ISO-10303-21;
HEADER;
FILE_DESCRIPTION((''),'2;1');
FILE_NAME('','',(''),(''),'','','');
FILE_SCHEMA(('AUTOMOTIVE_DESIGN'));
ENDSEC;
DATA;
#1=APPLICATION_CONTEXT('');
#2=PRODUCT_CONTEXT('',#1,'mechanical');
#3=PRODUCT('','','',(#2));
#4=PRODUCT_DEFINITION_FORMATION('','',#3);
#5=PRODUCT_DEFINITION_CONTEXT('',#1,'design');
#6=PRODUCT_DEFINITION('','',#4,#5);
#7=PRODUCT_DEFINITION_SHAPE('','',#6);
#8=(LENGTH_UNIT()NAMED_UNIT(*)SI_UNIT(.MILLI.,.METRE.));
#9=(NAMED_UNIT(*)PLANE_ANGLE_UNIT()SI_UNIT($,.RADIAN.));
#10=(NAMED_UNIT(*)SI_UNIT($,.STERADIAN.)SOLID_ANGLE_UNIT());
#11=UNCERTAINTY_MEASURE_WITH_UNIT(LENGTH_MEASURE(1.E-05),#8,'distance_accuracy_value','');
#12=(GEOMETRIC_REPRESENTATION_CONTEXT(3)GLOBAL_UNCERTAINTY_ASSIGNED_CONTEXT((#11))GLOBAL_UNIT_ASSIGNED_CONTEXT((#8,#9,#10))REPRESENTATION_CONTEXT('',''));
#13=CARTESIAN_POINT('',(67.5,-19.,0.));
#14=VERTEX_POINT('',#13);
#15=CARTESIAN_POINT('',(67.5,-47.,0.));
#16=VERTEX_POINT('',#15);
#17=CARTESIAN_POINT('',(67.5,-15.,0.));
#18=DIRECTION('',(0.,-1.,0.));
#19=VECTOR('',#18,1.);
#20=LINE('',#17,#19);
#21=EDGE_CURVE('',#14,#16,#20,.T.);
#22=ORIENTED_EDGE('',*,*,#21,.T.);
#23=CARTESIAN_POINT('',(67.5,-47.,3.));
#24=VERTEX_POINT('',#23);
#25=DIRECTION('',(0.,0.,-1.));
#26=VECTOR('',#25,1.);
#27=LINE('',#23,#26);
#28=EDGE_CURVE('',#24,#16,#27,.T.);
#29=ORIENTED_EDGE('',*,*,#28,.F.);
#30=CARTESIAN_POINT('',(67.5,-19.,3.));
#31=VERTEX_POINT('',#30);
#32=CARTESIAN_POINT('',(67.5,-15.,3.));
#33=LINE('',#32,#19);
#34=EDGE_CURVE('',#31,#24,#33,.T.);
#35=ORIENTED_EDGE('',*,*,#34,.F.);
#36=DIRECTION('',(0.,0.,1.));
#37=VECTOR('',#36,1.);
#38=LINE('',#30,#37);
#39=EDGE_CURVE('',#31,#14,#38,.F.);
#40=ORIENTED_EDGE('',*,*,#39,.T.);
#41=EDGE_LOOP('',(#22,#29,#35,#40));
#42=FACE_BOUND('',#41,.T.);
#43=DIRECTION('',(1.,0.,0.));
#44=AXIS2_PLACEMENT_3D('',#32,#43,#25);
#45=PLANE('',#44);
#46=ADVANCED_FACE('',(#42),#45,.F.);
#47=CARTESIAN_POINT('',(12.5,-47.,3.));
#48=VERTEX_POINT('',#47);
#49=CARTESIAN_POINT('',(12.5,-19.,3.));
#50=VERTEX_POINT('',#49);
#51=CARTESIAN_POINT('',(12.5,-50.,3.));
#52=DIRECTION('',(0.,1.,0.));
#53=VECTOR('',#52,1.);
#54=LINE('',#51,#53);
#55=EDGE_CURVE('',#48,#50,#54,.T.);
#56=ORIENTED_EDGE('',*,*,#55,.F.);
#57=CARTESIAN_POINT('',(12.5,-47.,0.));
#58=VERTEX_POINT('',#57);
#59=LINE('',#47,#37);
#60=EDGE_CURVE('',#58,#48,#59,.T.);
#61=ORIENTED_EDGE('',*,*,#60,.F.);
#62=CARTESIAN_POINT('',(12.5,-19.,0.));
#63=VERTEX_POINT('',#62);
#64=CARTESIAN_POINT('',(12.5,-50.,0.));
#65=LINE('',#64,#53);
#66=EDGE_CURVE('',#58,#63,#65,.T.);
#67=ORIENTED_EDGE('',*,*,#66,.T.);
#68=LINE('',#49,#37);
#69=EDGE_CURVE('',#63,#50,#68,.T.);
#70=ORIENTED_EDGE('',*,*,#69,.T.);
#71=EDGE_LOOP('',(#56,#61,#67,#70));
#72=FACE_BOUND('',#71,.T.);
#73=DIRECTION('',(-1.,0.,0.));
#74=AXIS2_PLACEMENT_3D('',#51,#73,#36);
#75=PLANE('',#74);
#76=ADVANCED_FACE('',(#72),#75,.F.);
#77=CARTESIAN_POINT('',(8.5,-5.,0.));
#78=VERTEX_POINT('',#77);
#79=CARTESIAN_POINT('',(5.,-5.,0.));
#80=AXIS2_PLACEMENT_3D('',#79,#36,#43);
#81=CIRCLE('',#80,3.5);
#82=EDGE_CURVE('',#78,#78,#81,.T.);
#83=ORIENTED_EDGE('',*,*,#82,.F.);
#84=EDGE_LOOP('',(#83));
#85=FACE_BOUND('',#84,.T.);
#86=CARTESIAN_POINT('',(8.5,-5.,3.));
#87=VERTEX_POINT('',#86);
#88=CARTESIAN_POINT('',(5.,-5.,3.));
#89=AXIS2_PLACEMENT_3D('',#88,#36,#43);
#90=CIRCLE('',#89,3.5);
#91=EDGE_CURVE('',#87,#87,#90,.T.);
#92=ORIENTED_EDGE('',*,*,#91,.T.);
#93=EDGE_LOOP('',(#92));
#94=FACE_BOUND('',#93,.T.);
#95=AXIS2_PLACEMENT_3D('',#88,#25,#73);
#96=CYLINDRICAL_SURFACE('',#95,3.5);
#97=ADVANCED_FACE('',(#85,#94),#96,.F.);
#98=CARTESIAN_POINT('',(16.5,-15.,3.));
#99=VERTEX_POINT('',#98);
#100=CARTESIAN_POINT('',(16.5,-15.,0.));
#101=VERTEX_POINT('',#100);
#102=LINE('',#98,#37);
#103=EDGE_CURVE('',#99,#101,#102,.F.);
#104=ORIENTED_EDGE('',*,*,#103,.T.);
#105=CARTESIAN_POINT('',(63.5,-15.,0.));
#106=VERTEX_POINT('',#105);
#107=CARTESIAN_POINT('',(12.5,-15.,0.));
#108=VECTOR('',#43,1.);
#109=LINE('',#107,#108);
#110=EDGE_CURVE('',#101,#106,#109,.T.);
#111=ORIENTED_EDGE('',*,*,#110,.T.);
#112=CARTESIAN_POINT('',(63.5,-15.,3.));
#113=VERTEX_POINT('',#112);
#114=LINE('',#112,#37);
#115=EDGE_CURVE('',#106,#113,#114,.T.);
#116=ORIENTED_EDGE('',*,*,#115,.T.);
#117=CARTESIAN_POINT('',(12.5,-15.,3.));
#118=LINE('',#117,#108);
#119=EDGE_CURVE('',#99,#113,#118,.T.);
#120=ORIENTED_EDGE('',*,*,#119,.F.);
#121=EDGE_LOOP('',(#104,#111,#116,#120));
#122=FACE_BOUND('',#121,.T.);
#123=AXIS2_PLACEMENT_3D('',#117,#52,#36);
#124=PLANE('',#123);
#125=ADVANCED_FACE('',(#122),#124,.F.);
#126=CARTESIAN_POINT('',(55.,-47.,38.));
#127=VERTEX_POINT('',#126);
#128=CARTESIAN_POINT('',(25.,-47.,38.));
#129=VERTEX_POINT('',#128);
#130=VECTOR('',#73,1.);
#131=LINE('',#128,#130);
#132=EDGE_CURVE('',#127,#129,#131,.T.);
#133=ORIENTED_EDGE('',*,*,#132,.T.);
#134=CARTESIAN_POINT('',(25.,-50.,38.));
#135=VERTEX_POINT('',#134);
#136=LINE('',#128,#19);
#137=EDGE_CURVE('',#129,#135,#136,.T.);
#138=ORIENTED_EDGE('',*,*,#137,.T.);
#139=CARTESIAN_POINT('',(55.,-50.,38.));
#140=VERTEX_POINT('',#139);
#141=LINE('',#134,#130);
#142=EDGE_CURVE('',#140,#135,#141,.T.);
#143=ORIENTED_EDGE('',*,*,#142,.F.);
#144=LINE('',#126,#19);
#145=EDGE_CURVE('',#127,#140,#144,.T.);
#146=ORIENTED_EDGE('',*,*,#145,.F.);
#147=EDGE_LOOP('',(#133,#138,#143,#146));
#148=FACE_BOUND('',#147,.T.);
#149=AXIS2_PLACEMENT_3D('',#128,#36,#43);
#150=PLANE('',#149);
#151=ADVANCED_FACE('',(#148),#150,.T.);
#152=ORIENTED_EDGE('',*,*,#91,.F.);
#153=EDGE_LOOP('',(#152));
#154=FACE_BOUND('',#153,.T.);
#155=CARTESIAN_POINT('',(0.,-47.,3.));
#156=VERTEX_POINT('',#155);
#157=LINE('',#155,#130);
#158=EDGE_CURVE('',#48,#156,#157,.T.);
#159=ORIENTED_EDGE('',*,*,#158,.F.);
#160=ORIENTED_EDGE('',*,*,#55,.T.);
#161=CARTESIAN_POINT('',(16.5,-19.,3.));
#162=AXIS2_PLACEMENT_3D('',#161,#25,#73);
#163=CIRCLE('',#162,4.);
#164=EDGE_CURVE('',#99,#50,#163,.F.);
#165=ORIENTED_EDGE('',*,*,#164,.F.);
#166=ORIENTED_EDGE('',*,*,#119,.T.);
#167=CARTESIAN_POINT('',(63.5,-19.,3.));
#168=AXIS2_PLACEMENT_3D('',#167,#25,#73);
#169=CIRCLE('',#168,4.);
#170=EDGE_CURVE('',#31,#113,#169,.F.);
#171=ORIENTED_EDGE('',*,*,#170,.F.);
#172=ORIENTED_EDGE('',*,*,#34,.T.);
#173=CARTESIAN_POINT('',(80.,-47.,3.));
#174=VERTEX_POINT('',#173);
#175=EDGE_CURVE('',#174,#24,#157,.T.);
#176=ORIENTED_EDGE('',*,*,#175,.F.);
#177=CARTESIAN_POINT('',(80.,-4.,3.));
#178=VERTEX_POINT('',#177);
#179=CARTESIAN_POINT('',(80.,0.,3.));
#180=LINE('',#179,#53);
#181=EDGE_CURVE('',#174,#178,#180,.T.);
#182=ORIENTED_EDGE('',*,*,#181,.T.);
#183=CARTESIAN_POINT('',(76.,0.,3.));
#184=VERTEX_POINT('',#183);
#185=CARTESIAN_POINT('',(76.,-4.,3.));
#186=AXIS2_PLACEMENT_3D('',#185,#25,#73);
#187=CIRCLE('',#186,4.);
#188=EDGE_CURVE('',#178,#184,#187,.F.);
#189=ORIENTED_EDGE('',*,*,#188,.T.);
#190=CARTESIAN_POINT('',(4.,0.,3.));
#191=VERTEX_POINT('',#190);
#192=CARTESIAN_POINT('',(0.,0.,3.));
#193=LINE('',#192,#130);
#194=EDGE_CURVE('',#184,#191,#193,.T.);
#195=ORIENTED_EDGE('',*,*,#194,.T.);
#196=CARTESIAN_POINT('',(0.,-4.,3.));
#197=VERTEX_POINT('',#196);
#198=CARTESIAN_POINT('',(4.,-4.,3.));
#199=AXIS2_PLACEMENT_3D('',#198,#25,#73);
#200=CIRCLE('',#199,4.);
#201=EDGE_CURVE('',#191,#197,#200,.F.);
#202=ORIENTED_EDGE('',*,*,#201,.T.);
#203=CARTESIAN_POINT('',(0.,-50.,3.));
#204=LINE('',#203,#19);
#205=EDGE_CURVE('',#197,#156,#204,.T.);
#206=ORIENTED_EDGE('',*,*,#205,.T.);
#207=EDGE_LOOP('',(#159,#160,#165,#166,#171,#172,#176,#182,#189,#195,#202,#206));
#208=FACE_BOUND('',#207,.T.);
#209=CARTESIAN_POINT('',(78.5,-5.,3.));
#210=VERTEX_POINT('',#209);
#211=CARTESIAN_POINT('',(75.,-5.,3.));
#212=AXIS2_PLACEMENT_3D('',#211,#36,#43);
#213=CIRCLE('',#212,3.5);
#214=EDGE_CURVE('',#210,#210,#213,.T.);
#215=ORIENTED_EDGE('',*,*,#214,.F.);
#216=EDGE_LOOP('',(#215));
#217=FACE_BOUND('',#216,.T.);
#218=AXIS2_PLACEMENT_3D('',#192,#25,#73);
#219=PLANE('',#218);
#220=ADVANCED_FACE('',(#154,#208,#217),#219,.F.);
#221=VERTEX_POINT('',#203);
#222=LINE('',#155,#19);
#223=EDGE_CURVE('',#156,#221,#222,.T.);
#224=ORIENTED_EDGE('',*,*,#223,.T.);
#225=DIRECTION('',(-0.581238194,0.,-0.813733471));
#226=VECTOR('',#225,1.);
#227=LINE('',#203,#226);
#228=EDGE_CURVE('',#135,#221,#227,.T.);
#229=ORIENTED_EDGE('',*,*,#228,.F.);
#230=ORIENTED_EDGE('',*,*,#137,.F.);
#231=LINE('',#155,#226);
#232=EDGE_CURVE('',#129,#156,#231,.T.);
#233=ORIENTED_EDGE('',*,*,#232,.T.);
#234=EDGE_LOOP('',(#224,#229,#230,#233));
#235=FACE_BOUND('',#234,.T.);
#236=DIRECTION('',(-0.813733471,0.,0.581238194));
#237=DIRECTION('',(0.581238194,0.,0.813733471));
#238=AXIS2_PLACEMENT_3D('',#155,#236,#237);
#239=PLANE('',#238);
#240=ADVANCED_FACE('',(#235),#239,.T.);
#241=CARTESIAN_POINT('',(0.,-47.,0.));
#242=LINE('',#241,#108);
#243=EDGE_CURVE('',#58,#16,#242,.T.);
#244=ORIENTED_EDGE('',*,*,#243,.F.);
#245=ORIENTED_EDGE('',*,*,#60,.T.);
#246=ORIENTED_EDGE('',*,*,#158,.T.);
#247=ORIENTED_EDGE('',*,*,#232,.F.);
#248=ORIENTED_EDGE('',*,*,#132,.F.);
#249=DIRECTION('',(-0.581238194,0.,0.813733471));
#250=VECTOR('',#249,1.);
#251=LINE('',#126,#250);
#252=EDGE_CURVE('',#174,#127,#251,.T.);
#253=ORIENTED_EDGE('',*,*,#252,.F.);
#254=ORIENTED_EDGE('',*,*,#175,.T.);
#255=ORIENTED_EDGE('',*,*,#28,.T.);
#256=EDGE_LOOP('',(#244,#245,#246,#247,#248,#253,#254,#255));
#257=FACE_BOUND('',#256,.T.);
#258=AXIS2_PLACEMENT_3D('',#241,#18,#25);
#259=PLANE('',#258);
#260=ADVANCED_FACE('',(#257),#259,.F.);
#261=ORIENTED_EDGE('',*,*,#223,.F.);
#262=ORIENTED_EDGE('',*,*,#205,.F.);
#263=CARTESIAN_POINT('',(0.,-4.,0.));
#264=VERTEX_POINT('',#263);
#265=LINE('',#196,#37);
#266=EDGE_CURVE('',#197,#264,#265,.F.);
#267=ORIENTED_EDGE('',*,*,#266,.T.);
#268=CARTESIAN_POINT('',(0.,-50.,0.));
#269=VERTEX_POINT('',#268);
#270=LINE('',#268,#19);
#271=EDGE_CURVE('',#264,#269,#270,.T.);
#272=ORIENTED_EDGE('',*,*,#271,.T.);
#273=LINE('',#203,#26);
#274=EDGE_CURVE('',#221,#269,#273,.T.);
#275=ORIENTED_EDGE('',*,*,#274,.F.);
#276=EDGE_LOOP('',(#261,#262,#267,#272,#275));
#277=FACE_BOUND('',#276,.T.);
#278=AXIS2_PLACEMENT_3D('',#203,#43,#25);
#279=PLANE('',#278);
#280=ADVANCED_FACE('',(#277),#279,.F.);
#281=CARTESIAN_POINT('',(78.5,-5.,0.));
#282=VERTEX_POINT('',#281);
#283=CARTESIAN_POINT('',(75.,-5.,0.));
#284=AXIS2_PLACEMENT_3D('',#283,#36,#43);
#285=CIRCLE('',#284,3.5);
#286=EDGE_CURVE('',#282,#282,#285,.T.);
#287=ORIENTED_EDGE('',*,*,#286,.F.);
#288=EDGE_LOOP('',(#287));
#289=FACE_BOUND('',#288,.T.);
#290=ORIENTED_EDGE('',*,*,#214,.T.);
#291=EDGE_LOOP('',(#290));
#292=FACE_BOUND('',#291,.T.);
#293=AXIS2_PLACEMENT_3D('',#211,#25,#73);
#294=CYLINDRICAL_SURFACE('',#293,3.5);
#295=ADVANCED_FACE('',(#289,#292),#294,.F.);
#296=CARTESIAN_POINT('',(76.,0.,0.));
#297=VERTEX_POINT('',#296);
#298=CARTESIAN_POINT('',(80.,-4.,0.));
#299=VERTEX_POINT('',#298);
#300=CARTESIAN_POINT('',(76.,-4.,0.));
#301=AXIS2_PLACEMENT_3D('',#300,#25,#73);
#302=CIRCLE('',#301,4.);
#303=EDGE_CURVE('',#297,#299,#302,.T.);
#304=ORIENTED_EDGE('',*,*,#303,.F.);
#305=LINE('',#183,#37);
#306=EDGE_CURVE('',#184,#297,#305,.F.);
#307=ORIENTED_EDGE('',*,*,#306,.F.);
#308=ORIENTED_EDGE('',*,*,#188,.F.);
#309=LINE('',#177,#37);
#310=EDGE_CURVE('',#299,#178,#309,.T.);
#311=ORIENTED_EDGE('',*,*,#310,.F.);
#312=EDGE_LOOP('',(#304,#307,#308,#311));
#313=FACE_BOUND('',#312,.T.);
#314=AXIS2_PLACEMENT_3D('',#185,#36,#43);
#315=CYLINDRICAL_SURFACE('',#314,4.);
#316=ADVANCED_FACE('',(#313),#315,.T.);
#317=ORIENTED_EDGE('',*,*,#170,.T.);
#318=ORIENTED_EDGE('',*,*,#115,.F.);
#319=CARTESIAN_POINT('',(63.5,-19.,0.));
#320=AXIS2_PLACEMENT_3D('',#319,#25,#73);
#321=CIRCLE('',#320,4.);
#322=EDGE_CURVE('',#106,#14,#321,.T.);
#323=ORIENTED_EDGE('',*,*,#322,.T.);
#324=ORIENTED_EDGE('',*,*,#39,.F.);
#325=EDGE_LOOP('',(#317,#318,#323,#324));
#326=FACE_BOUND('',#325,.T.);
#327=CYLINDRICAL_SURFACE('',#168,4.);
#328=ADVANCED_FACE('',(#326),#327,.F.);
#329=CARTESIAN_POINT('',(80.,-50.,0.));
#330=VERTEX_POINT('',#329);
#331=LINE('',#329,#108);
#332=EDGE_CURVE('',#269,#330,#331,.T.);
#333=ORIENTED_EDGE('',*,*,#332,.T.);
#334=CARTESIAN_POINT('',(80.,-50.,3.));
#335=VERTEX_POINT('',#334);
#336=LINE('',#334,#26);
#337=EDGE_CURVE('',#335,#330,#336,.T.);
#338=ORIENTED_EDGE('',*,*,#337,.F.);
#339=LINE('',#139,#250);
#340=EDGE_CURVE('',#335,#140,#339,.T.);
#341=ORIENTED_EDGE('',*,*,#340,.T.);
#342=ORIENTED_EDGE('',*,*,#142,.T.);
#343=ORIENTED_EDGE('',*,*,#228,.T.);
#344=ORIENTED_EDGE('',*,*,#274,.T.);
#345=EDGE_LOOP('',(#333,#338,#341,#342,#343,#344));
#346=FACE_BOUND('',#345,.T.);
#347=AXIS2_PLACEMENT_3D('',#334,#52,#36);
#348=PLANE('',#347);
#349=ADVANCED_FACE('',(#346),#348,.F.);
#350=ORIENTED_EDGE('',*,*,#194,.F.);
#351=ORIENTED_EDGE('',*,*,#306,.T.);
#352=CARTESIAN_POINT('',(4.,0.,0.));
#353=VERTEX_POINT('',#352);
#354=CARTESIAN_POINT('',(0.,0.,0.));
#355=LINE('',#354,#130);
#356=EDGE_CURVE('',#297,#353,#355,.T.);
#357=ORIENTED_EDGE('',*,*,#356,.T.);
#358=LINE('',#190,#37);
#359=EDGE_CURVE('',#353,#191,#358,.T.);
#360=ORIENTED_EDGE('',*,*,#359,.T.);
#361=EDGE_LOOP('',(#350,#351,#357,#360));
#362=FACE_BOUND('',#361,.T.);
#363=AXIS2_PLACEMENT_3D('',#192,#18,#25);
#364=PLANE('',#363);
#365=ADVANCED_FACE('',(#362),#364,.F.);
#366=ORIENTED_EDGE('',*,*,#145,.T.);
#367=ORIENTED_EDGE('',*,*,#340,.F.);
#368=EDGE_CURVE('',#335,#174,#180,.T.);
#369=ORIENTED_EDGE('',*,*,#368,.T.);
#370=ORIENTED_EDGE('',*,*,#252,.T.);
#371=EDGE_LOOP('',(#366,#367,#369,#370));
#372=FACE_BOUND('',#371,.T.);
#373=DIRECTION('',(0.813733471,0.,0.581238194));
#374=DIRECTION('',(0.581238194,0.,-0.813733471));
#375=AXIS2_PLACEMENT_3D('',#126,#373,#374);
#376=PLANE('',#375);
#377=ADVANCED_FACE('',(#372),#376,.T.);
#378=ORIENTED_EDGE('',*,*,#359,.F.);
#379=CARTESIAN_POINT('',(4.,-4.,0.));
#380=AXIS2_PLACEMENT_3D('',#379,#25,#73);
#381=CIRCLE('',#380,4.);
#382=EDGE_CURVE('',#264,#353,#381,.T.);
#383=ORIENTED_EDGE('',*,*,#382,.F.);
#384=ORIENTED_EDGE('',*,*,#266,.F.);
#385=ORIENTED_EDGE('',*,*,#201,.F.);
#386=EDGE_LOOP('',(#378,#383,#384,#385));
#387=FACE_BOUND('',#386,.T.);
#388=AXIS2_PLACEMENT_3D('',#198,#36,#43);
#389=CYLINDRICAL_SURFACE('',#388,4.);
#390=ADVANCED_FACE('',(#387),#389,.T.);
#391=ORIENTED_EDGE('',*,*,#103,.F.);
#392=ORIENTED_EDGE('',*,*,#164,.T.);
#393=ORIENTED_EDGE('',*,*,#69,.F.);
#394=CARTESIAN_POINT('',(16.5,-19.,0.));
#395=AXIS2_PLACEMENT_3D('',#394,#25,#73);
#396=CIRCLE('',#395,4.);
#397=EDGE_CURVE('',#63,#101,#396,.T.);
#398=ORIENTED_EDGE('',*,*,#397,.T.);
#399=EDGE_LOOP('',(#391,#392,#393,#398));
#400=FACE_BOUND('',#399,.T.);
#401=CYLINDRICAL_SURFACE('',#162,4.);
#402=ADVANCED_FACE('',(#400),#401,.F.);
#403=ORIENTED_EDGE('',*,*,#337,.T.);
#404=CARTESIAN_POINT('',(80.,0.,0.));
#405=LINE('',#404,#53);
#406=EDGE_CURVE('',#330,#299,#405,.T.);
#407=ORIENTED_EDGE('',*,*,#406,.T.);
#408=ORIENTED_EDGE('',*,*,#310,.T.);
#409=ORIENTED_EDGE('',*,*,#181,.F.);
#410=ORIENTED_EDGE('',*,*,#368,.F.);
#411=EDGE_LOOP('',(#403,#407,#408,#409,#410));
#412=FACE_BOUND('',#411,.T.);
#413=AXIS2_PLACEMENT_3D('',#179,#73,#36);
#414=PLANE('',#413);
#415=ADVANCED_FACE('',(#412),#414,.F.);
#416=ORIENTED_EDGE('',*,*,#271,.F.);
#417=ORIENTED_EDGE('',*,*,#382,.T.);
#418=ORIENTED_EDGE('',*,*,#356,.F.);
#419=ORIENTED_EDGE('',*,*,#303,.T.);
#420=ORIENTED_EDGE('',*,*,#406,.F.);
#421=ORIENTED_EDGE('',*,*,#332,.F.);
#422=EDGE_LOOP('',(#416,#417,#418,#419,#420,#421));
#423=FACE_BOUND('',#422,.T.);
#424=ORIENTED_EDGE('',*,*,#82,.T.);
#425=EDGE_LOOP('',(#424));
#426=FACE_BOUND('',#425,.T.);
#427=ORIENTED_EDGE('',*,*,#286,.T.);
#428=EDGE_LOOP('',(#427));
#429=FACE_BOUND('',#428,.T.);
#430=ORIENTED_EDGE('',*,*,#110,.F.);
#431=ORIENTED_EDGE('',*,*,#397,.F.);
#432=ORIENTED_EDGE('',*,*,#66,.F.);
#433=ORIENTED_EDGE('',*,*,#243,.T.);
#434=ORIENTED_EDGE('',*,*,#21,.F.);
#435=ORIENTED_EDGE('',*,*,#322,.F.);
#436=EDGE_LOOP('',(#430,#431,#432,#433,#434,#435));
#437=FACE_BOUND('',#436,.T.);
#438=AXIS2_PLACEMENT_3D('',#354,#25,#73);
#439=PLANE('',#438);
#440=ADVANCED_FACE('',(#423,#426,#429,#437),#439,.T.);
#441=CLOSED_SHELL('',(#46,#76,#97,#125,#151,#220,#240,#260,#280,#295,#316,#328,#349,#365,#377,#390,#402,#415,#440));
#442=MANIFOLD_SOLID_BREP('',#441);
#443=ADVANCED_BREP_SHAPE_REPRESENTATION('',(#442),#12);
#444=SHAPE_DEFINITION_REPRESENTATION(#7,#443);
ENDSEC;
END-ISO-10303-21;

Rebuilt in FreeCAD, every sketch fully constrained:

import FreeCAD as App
import Part
import Sketcher
Q = App.Units.Quantity


def edges_at(feature, points):
    """Names of the edges that pass closest to the given points."""
    edges = feature.Shape.Edges
    near = lambda p: min(range(len(edges)), key=lambda i: edges[i].distToShape(Part.Vertex(*p))[0])
    return sorted({f"Edge{near(p) + 1}" for p in points})

doc = App.newDocument("Part")
body = doc.addObject("PartDesign::Body", "Body")

# Sketch on XY plane
sketch1 = body.newObject("Sketcher::SketchObject", "Sketch")
sketch1.AttachmentSupport = (doc.getObject("XY_Plane"), [""])
sketch1.MapMode = "FlatFace"
sketch1.addGeometry([
    Part.LineSegment(App.Vector(80, 0, 0), App.Vector(0, 0, 0)),  # 0
    Part.LineSegment(App.Vector(0, 0, 0), App.Vector(0, -50, 0)),  # 1
    Part.LineSegment(App.Vector(0, -50, 0), App.Vector(12.5, -50, 0)),  # 2
    Part.LineSegment(App.Vector(12.5, -50, 0), App.Vector(12.5, -15, 0)),  # 3
    Part.LineSegment(App.Vector(12.5, -15, 0), App.Vector(67.5, -15, 0)),  # 4
    Part.LineSegment(App.Vector(67.5, -15, 0), App.Vector(67.5, -50, 0)),  # 5
    Part.LineSegment(App.Vector(67.5, -50, 0), App.Vector(80, -50, 0)),  # 6
    Part.LineSegment(App.Vector(80, -50, 0), App.Vector(80, 0, 0)),  # 7
    Part.Circle(App.Vector(75, -5, 0), App.Vector(0, 0, 1), 3.5),  # 8
    Part.Circle(App.Vector(5, -5, 0), App.Vector(0, 0, 1), 3.5),  # 9
], False)
sketch1.addConstraint([
    Sketcher.Constraint("Coincident", 0, 2, 1, 1),
    Sketcher.Constraint("Coincident", 1, 2, 2, 1),
    Sketcher.Constraint("Coincident", 2, 2, 3, 1),
    Sketcher.Constraint("Coincident", 3, 2, 4, 1),
    Sketcher.Constraint("Coincident", 4, 2, 5, 1),
    Sketcher.Constraint("Coincident", 5, 2, 6, 1),
    Sketcher.Constraint("Coincident", 6, 2, 7, 1),
    Sketcher.Constraint("Coincident", 7, 2, 0, 1),
    Sketcher.Constraint("Horizontal", 0),
    Sketcher.Constraint("Vertical", 1),
    Sketcher.Constraint("Horizontal", 2),
    Sketcher.Constraint("Vertical", 3),
    Sketcher.Constraint("Horizontal", 4),
    Sketcher.Constraint("Vertical", 5),
    Sketcher.Constraint("Horizontal", 6),
    Sketcher.Constraint("Vertical", 7),
    Sketcher.Constraint("Coincident", 0, 2, -1, 1),
    Sketcher.Constraint("Equal", 8, 9),
    Sketcher.Constraint("Horizontal", 8, 3, 9, 3),
    Sketcher.Constraint("Horizontal", 2, 2, 5, 2),
    Sketcher.Constraint("Equal", 2, 6),
    Sketcher.Constraint("Diameter", 8, Q("7 mm")),
    Sketcher.Constraint("DistanceX", 0, 2, 0, 1, Q("80 mm")),
    Sketcher.Constraint("DistanceX", 4, 1, 4, 2, Q("55 mm")),
    Sketcher.Constraint("DistanceY", 1, 2, 1, 1, Q("50 mm")),
    Sketcher.Constraint("DistanceY", 3, 1, 3, 2, Q("35 mm")),
    Sketcher.Constraint("DistanceX", -1, 1, 8, 3, Q("75 mm")),
    Sketcher.Constraint("DistanceY", 8, 3, -1, 1, Q("5 mm")),
    Sketcher.Constraint("DistanceX", -1, 1, 9, 3, Q("5 mm")),
])
pad1 = body.newObject("PartDesign::Pad", "Pad")
pad1.Profile = sketch1
pad1.Length = 3
doc.recompute()

fillet = body.newObject("PartDesign::Fillet", "Fillet")
fillet.Base = (pad1, edges_at(pad1, [(0, 0, 1.5)]))
fillet.Radius = 4
doc.recompute()

fillet2 = body.newObject("PartDesign::Fillet", "Fillet001")
fillet2.Base = (fillet, edges_at(fillet, [(80, 0, 1.5)]))
fillet2.Radius = 4
doc.recompute()

fillet3 = body.newObject("PartDesign::Fillet", "Fillet002")
fillet3.Base = (fillet2, edges_at(fillet2, [(12.5, -15, 1.5)]))
fillet3.Radius = 4
doc.recompute()

fillet4 = body.newObject("PartDesign::Fillet", "Fillet003")
fillet4.Base = (fillet3, edges_at(fillet3, [(67.5, -15, 1.5)]))
fillet4.Radius = 4

# Sketch on XZ plane
sketch2 = body.newObject("Sketcher::SketchObject", "Sketch001")
sketch2.AttachmentSupport = (doc.getObject("XZ_Plane"), [""])
sketch2.MapMode = "FlatFace"
sketch2.AttachmentOffset = App.Placement(App.Vector(0, 0, 50), App.Rotation())
sketch2.addGeometry([
    Part.LineSegment(App.Vector(25, 38, 0), App.Vector(0, 3, 0)),  # 0
    Part.LineSegment(App.Vector(0, 3, 0), App.Vector(0, 0, 0)),  # 1
    Part.LineSegment(App.Vector(0, 0, 0), App.Vector(80, 0, 0)),  # 2
    Part.LineSegment(App.Vector(80, 0, 0), App.Vector(80, 3, 0)),  # 3
    Part.LineSegment(App.Vector(80, 3, 0), App.Vector(55, 38, 0)),  # 4
    Part.LineSegment(App.Vector(55, 38, 0), App.Vector(25, 38, 0)),  # 5
], False)
sketch2.addConstraint([
    Sketcher.Constraint("Coincident", 0, 2, 1, 1),
    Sketcher.Constraint("Coincident", 1, 2, 2, 1),
    Sketcher.Constraint("Coincident", 2, 2, 3, 1),
    Sketcher.Constraint("Coincident", 3, 2, 4, 1),
    Sketcher.Constraint("Coincident", 4, 2, 5, 1),
    Sketcher.Constraint("Coincident", 5, 2, 0, 1),
    Sketcher.Constraint("Vertical", 1),
    Sketcher.Constraint("Horizontal", 2),
    Sketcher.Constraint("Vertical", 3),
    Sketcher.Constraint("Horizontal", 5),
    Sketcher.Constraint("Coincident", 1, 2, -1, 1),
    Sketcher.Constraint("Horizontal", 0, 2, 3, 2),
    Sketcher.Constraint("Equal", 0, 4),
    Sketcher.Constraint("DistanceX", 2, 1, 2, 2, Q("80 mm")),
    Sketcher.Constraint("DistanceX", 5, 2, 5, 1, Q("30 mm")),
    Sketcher.Constraint("DistanceY", 1, 2, 1, 1, Q("3 mm")),
    Sketcher.Constraint("DistanceY", -1, 1, 4, 2, Q("38 mm")),
])
pad2 = body.newObject("PartDesign::Pad", "Pad001")
pad2.Profile = sketch2
pad2.Length = 3
pad2.Reversed = True

doc.recompute()
